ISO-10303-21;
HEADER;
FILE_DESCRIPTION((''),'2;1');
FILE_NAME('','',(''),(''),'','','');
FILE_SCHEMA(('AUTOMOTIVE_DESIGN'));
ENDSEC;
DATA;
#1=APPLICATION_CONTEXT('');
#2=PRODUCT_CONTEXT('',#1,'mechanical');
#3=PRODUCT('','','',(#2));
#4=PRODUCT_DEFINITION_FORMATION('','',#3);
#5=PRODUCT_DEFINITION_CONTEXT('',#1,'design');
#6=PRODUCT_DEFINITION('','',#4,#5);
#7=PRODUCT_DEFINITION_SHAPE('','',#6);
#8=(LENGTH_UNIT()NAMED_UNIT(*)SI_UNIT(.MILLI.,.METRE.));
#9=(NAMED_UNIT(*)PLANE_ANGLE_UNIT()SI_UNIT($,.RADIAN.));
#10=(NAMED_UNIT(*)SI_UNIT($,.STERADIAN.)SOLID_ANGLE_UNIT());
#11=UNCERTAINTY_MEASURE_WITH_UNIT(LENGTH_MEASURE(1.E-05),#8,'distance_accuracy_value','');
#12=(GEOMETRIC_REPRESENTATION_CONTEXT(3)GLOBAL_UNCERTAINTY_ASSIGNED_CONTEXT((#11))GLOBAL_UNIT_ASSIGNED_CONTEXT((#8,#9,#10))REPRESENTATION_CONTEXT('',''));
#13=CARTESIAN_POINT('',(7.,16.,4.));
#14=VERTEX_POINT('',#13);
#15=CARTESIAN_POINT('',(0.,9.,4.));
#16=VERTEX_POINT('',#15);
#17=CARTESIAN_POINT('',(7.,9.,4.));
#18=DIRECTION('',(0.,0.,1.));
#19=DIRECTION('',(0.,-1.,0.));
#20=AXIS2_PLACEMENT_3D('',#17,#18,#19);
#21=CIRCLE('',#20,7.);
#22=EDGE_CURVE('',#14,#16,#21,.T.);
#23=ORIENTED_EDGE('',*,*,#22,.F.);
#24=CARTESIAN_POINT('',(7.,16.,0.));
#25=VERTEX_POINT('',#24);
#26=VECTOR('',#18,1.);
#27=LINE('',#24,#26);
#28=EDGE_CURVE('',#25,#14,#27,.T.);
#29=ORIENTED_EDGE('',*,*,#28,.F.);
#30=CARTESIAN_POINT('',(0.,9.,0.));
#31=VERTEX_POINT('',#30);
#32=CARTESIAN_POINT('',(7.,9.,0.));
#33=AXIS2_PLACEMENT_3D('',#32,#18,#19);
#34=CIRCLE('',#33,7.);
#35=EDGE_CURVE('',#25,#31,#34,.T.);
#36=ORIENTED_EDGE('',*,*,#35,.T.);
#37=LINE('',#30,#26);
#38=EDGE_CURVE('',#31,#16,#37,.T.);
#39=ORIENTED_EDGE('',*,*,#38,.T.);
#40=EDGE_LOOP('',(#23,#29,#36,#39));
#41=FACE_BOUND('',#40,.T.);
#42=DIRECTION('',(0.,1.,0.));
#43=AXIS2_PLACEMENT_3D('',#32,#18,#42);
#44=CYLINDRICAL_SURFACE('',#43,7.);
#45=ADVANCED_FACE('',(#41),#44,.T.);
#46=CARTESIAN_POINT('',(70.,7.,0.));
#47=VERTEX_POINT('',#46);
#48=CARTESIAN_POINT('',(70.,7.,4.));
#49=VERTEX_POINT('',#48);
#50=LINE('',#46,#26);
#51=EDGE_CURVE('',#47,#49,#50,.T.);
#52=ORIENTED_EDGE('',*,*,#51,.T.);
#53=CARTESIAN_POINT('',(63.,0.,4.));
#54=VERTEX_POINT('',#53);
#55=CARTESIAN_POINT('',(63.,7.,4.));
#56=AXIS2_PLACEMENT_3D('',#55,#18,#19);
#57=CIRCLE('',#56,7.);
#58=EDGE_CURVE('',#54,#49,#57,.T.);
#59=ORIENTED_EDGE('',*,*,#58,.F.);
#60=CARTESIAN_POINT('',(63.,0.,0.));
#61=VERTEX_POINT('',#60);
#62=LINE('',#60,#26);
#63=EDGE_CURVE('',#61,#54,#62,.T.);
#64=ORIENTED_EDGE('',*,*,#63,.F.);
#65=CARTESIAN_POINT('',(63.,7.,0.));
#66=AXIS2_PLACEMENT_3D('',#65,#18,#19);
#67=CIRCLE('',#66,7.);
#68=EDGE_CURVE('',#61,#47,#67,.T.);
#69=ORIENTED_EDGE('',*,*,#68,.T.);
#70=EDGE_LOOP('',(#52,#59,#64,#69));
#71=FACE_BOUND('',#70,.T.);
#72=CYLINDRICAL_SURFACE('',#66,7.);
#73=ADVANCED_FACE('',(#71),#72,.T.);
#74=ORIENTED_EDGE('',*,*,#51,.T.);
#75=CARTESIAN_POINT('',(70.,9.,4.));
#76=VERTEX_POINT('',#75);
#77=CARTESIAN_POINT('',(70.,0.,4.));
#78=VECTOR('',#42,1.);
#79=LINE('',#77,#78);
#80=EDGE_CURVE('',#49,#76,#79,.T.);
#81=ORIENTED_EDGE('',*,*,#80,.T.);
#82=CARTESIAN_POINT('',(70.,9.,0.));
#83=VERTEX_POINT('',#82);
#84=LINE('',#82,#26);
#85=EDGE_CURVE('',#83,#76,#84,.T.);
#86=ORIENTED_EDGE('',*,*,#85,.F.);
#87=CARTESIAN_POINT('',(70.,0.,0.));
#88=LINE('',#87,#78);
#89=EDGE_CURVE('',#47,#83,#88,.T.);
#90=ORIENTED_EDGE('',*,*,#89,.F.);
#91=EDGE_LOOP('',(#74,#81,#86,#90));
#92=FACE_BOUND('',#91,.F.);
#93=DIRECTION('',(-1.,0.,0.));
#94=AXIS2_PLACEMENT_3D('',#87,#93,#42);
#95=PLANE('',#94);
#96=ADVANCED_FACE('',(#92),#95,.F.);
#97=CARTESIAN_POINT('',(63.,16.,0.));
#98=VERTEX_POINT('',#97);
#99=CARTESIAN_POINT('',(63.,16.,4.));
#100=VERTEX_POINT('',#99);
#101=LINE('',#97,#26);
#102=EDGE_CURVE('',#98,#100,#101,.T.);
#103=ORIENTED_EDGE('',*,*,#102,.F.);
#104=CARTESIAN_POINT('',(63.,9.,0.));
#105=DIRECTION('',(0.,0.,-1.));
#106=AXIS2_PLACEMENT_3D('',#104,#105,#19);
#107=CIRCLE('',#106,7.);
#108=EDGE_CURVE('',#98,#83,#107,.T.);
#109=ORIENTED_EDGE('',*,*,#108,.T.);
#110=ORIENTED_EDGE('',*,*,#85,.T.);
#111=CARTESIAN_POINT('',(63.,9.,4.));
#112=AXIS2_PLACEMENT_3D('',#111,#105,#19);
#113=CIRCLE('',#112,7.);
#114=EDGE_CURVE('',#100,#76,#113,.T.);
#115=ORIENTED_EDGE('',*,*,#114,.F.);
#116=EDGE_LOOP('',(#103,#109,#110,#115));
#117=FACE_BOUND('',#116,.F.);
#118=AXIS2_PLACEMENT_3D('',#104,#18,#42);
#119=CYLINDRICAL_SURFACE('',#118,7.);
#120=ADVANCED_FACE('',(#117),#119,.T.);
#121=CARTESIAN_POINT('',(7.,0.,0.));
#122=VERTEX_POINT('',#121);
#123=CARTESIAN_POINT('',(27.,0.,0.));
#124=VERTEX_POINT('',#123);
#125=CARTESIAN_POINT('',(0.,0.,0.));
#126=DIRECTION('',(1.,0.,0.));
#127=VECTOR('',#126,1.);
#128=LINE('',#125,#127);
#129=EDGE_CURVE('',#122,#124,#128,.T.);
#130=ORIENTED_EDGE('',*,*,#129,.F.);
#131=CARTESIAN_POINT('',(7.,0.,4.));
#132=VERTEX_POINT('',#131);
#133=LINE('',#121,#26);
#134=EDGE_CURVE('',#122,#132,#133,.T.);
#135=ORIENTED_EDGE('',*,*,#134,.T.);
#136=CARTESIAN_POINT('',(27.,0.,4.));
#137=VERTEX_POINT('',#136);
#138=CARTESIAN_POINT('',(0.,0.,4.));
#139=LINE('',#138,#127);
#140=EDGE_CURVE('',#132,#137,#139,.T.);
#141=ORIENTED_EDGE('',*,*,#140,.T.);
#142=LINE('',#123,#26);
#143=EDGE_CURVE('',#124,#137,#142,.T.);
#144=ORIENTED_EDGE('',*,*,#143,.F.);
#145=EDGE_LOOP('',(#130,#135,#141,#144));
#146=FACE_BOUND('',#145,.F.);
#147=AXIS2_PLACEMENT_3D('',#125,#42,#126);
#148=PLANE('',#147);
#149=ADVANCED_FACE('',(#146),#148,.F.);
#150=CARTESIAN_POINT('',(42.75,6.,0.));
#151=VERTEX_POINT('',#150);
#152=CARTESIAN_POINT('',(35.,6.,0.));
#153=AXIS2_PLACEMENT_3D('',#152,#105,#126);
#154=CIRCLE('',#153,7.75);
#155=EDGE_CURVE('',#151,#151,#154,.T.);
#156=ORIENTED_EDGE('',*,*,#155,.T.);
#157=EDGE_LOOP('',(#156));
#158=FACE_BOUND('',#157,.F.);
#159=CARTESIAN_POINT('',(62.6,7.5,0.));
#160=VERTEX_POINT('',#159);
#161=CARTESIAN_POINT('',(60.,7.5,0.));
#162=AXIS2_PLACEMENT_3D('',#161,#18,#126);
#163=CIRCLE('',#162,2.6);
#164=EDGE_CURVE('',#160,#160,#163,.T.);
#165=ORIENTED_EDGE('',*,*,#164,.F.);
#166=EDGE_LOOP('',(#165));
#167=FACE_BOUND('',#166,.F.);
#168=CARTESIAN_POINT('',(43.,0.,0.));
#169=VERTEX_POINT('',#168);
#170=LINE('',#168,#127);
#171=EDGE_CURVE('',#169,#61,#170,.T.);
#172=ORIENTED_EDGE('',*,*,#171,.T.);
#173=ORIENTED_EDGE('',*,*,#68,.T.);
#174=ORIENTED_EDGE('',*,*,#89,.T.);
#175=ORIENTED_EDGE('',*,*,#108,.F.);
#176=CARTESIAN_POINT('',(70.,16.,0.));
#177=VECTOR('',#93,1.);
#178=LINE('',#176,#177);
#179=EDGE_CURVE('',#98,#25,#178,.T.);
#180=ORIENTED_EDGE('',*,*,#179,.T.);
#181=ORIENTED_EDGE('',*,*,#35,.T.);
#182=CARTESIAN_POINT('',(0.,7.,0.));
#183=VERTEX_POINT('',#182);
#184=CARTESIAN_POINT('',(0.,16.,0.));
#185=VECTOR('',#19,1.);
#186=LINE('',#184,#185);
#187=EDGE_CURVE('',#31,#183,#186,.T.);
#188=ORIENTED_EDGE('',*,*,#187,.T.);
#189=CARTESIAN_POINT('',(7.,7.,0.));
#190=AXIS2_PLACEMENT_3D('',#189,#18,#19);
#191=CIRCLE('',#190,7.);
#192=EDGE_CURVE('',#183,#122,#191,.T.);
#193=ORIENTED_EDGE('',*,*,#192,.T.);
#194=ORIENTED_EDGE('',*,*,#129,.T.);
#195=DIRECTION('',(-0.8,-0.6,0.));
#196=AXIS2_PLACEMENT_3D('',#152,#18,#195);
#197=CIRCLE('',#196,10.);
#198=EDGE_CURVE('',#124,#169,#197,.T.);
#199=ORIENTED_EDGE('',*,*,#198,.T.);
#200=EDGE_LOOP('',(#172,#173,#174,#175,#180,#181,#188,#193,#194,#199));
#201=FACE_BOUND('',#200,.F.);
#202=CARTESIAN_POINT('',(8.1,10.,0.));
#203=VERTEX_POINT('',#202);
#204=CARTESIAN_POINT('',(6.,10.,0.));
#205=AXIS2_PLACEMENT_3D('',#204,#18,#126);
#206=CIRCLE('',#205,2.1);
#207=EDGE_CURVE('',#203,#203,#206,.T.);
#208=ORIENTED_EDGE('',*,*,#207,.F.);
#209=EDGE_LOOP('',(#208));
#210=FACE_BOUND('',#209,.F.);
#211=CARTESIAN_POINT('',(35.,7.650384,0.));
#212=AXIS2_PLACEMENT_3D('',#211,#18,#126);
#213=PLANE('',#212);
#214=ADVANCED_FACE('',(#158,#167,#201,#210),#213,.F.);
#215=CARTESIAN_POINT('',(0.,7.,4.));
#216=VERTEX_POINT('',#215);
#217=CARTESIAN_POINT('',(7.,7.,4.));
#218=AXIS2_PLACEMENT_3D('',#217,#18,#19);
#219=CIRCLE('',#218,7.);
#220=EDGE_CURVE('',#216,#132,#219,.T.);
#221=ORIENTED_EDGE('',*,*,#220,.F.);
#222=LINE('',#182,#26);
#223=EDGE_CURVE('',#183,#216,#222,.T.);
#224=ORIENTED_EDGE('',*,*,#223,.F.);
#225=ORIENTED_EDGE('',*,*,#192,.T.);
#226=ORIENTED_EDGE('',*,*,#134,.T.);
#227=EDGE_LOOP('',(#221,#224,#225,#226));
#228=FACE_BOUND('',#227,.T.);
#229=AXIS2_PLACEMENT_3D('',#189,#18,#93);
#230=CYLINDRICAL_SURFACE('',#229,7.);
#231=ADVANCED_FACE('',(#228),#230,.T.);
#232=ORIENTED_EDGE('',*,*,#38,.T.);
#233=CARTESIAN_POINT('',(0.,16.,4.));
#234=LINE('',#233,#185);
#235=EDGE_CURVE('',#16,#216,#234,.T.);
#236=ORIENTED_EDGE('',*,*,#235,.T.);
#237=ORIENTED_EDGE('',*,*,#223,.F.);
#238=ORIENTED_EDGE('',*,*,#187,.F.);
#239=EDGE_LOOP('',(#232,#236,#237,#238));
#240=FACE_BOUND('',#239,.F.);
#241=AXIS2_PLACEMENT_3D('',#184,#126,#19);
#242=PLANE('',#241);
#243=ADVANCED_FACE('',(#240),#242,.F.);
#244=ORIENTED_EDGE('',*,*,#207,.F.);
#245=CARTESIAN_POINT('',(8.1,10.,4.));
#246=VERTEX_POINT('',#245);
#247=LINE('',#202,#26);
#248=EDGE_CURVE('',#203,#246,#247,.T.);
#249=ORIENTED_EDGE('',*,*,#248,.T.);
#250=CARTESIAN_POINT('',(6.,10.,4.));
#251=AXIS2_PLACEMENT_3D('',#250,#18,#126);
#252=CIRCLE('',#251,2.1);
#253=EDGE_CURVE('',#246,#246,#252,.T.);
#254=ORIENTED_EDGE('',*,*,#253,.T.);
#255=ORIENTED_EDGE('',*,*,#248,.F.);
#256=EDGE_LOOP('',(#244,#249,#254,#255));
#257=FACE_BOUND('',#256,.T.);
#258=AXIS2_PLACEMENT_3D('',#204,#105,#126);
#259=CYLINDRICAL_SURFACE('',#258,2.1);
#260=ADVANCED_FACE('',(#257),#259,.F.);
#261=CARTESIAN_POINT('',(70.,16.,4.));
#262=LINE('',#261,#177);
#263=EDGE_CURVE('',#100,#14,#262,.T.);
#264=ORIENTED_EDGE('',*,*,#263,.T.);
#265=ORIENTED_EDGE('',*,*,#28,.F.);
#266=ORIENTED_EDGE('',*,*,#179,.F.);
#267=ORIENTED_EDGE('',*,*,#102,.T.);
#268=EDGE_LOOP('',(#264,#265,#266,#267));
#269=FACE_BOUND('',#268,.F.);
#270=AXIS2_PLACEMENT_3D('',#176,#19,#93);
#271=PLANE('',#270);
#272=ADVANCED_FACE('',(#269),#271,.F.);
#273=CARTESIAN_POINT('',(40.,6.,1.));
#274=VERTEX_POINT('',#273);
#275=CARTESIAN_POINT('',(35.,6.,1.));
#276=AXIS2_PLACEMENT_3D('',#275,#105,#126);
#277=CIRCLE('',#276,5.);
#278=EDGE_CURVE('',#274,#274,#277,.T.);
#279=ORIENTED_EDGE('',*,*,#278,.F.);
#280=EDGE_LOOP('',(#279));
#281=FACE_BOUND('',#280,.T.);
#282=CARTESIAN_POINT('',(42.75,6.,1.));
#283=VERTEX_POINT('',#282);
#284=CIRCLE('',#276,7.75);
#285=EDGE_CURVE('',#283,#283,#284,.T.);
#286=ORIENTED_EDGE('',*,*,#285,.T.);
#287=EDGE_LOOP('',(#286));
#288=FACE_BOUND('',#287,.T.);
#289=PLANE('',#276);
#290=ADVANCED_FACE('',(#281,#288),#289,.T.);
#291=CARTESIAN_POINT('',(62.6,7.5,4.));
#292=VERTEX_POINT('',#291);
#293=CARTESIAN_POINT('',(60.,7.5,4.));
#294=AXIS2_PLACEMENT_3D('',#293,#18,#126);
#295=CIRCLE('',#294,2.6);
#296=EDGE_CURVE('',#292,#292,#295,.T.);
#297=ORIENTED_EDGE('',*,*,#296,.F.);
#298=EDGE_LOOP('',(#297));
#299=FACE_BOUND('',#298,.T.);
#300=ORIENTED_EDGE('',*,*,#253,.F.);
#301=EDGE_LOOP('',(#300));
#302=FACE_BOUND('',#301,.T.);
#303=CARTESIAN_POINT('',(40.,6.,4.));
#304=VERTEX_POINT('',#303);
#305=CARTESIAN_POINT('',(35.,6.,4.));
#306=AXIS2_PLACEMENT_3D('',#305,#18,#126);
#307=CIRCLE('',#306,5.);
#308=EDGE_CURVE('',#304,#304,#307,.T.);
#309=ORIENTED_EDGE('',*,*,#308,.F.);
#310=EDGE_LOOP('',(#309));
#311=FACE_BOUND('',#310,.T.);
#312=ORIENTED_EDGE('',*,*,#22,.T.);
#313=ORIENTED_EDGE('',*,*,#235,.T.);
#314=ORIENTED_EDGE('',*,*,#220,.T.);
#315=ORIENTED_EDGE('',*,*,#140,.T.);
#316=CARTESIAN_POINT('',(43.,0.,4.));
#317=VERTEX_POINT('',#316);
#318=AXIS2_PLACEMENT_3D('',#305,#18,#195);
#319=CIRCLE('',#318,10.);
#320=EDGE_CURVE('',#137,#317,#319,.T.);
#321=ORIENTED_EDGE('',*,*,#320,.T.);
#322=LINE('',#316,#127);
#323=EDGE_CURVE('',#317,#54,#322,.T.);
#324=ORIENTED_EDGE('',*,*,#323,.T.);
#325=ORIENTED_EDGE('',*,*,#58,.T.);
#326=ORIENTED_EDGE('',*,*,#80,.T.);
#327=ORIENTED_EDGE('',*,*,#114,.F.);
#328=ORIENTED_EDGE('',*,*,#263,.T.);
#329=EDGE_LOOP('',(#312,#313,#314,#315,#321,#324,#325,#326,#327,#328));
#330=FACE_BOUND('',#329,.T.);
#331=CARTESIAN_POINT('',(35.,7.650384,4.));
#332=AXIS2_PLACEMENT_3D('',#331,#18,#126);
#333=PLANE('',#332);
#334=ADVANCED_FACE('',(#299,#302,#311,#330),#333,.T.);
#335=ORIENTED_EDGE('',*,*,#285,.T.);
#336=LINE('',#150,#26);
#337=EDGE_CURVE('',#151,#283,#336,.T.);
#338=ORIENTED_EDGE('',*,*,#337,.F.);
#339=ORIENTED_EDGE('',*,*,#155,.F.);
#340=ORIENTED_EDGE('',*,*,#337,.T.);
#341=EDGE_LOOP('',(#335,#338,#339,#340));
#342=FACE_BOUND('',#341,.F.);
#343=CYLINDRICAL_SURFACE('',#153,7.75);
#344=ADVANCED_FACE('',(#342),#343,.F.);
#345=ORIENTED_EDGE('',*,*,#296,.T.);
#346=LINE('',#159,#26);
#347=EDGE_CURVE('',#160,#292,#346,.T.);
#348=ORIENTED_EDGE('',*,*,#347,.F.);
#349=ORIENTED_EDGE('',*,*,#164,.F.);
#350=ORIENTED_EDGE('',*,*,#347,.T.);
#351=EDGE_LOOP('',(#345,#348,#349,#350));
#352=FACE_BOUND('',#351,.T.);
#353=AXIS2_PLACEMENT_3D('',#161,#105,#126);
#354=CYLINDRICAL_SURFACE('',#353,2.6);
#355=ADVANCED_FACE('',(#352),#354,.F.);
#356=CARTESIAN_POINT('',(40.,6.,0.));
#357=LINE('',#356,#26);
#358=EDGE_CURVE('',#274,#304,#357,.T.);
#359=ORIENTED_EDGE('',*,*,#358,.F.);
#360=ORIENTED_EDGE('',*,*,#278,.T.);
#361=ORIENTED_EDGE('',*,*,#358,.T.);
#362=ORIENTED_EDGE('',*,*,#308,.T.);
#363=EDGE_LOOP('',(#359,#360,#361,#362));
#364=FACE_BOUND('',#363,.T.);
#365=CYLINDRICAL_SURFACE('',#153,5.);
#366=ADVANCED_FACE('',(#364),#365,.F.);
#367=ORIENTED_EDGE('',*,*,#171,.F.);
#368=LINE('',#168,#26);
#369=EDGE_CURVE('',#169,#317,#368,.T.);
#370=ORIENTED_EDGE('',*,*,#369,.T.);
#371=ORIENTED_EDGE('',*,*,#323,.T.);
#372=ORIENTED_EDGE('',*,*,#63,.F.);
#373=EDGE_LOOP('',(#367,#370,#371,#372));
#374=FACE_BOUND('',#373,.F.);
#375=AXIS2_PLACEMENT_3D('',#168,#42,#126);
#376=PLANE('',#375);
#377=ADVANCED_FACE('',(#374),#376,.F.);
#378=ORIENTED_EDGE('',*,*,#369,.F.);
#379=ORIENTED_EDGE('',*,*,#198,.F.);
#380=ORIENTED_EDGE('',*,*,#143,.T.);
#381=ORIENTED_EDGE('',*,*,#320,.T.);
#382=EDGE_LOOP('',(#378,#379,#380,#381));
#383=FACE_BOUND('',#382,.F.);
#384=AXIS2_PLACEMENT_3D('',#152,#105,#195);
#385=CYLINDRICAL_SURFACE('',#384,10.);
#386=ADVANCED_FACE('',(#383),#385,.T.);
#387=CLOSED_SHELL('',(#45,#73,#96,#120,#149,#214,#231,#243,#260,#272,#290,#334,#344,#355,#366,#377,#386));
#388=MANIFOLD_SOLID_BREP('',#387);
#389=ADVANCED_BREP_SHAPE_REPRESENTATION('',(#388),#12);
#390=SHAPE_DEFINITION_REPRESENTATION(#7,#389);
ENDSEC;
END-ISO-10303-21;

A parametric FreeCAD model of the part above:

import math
import FreeCAD as App
import Part
import Sketcher


def edges_at(feature, points):
    """Names of the edges that pass closest to the given points."""
    edges = feature.Shape.Edges
    near = lambda p: min(range(len(edges)), key=lambda i: edges[i].distToShape(Part.Vertex(*p))[0])
    return sorted({f"Edge{near(p) + 1}" for p in points})

doc = App.newDocument("Part")
body = doc.addObject("PartDesign::Body", "Body")

# Sketch on XY plane
sketch1 = body.newObject("Sketcher::SketchObject", "Sketch")
sketch1.AttachmentSupport = (doc.getObject("XY_Plane"), [""])
sketch1.MapMode = "FlatFace"
sketch1.addGeometry(Part.LineSegment(App.Vector(0, 0, 0), App.Vector(27, 0, 0)), False)
sketch1.addGeometry(Part.ArcOfCircle(Part.Circle(App.Vector(35, 6, 0), App.Vector(0, 0, 1), 10), math.radians(-143.130102), math.radians(-36.869898)), False)
sketch1.addGeometry(Part.LineSegment(App.Vector(43, 0, 0), App.Vector(70, 0, 0)), False)
sketch1.addGeometry(Part.LineSegment(App.Vector(70, 0, 0), App.Vector(70, 16, 0)), False)
sketch1.addGeometry(Part.LineSegment(App.Vector(70, 16, 0), App.Vector(0, 16, 0)), False)
sketch1.addGeometry(Part.LineSegment(App.Vector(0, 16, 0), App.Vector(0, 0, 0)), False)
sketch1.addGeometry(Part.Circle(App.Vector(35, 6, 0), App.Vector(0, 0, 1), 5), False)
sketch1.addGeometry(Part.Circle(App.Vector(6, 10, 0), App.Vector(0, 0, 1), 2.1), False)
sketch1.addGeometry(Part.Circle(App.Vector(60, 7.5, 0), App.Vector(0, 0, 1), 2.6), False)
sketch1.addConstraint(Sketcher.Constraint("Coincident", 0, 2, 1, 1))
sketch1.addConstraint(Sketcher.Constraint("Coincident", 1, 2, 2, 1))
sketch1.addConstraint(Sketcher.Constraint("Coincident", 2, 2, 3, 1))
sketch1.addConstraint(Sketcher.Constraint("Coincident", 3, 2, 4, 1))
sketch1.addConstraint(Sketcher.Constraint("Coincident", 4, 2, 5, 1))
sketch1.addConstraint(Sketcher.Constraint("Coincident", 5, 2, 0, 1))
sketch1.addConstraint(Sketcher.Constraint("Horizontal", 0))
sketch1.addConstraint(Sketcher.Constraint("Horizontal", 2))
sketch1.addConstraint(Sketcher.Constraint("Vertical", 3))
sketch1.addConstraint(Sketcher.Constraint("Horizontal", 4))
sketch1.addConstraint(Sketcher.Constraint("Vertical", 5))
sketch1.addConstraint(Sketcher.Constraint("Coincident", 5, 2, -1, 1))
sketch1.addConstraint(Sketcher.Constraint("Coincident", 6, 3, 1, 3))
sketch1.addConstraint(Sketcher.Constraint("PointOnObject", 1, 2, -1))
sketch1.addConstraint(Sketcher.Constraint("Equal", 0, 2))
sketch1.addConstraint(Sketcher.Constraint("Diameter", 6, 10.0))
sketch1.addConstraint(Sketcher.Constraint("Radius", 1, 10.0))
sketch1.addConstraint(Sketcher.Constraint("Diameter", 7, 4.2))
sketch1.addConstraint(Sketcher.Constraint("Diameter", 8, 5.2))
sketch1.addConstraint(Sketcher.Constraint("DistanceX", 0, 1, 0, 2, 27.0))
sketch1.addConstraint(Sketcher.Constraint("DistanceX", 4, 2, 4, 1, 70.0))
sketch1.addConstraint(Sketcher.Constraint("DistanceY", 3, 1, 3, 2, 16.0))
sketch1.addConstraint(Sketcher.Constraint("DistanceX", -1, 1, 7, 3, 6.0))
sketch1.addConstraint(Sketcher.Constraint("DistanceY", -1, 1, 7, 3, 10.0))
sketch1.addConstraint(Sketcher.Constraint("DistanceX", -1, 1, 8, 3, 60.0))
sketch1.addConstraint(Sketcher.Constraint("DistanceY", -1, 1, 8, 3, 7.5))
pad1 = body.newObject("PartDesign::Pad", "Pad")
pad1.Profile = sketch1
pad1.Length = 4
doc.recompute()

fillet = body.newObject("PartDesign::Fillet", "Fillet")
fillet.Base = (pad1, edges_at(pad1, [(70, 0, 2), (70, 16, 2)]))
fillet.Radius = 7
doc.recompute()

fillet2 = body.newObject("PartDesign::Fillet", "Fillet001")
fillet2.Base = (fillet, edges_at(fillet, [(0, 0, 2), (0, 16, 2)]))
fillet2.Radius = 7

# Sketch on XY plane
sketch2 = body.newObject("Sketcher::SketchObject", "Sketch001")
sketch2.AttachmentSupport = (doc.getObject("XY_Plane"), [""])
sketch2.MapMode = "FlatFace"
sketch2.addGeometry(Part.Circle(App.Vector(35, 6, 0), App.Vector(0, 0, 1), 7.75), False)
sketch2.addConstraint(Sketcher.Constraint("Diameter", 0, 15.5))
sketch2.addConstraint(Sketcher.Constraint("DistanceX", -1, 1, 0, 3, 35.0))
sketch2.addConstraint(Sketcher.Constraint("DistanceY", -1, 1, 0, 3, 6.0))
pocket1 = body.newObject("PartDesign::Pocket", "Pocket")
pocket1.Profile = sketch2
pocket1.Length = 1
pocket1.Reversed = True

doc.recompute()
